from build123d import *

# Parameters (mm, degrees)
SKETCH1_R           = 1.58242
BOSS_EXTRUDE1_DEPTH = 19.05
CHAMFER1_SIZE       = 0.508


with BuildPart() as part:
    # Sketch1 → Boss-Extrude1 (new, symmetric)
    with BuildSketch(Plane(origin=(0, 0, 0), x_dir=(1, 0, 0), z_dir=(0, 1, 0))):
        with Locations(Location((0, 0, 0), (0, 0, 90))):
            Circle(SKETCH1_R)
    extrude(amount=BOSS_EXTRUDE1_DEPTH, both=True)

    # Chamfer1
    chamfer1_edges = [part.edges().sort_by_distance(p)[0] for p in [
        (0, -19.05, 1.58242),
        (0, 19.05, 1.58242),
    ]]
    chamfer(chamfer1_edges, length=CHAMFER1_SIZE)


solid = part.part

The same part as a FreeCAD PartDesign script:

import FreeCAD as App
import Part
import Sketcher
from FreeCAD import Vector
Q = App.Units.Quantity


def edges_at(feature, points):
    """Names of the edges that pass closest to the given points."""
    edges = feature.Shape.Edges
    near = lambda p: min(range(len(edges)), key=lambda i: edges[i].distToShape(Part.Vertex(*p))[0])
    return sorted({f"Edge{near(p) + 1}" for p in points})

doc = App.newDocument("Part")
body = doc.addObject("PartDesign::Body", "Body")

# Sketch on XZ plane
sketch1 = doc.addObject("Sketcher::SketchObject", "Sketch")
body.addObject(sketch1)
sketch1.AttachmentSupport = (doc.XZ_Plane, [""])
sketch1.MapMode = "FlatFace"
sketch1.addGeometry(Part.Circle(Vector(0, 0, 0), Vector(0, 0, 1), 1.58242), False)
sketch1.addConstraint([
    Sketcher.Constraint("Coincident", 0, 3, -1, 1),
    Sketcher.Constraint("Diameter", 0, Q("0.1246 in")),
])
pad1 = doc.addObject("PartDesign::Pad", "Pad")
body.addObject(pad1)
pad1.Profile = sketch1
pad1.Length = Q("1.5 in")
pad1.Midplane = True
doc.recompute()

chamfer = doc.addObject("PartDesign::Chamfer", "Chamfer")
body.addObject(chamfer)
chamfer.Base = (pad1, edges_at(pad1, [(0, -19.05, 1.582), (0, 19.05, 1.582)]))
chamfer.Size = Q("0.02 in")

doc.recompute()
